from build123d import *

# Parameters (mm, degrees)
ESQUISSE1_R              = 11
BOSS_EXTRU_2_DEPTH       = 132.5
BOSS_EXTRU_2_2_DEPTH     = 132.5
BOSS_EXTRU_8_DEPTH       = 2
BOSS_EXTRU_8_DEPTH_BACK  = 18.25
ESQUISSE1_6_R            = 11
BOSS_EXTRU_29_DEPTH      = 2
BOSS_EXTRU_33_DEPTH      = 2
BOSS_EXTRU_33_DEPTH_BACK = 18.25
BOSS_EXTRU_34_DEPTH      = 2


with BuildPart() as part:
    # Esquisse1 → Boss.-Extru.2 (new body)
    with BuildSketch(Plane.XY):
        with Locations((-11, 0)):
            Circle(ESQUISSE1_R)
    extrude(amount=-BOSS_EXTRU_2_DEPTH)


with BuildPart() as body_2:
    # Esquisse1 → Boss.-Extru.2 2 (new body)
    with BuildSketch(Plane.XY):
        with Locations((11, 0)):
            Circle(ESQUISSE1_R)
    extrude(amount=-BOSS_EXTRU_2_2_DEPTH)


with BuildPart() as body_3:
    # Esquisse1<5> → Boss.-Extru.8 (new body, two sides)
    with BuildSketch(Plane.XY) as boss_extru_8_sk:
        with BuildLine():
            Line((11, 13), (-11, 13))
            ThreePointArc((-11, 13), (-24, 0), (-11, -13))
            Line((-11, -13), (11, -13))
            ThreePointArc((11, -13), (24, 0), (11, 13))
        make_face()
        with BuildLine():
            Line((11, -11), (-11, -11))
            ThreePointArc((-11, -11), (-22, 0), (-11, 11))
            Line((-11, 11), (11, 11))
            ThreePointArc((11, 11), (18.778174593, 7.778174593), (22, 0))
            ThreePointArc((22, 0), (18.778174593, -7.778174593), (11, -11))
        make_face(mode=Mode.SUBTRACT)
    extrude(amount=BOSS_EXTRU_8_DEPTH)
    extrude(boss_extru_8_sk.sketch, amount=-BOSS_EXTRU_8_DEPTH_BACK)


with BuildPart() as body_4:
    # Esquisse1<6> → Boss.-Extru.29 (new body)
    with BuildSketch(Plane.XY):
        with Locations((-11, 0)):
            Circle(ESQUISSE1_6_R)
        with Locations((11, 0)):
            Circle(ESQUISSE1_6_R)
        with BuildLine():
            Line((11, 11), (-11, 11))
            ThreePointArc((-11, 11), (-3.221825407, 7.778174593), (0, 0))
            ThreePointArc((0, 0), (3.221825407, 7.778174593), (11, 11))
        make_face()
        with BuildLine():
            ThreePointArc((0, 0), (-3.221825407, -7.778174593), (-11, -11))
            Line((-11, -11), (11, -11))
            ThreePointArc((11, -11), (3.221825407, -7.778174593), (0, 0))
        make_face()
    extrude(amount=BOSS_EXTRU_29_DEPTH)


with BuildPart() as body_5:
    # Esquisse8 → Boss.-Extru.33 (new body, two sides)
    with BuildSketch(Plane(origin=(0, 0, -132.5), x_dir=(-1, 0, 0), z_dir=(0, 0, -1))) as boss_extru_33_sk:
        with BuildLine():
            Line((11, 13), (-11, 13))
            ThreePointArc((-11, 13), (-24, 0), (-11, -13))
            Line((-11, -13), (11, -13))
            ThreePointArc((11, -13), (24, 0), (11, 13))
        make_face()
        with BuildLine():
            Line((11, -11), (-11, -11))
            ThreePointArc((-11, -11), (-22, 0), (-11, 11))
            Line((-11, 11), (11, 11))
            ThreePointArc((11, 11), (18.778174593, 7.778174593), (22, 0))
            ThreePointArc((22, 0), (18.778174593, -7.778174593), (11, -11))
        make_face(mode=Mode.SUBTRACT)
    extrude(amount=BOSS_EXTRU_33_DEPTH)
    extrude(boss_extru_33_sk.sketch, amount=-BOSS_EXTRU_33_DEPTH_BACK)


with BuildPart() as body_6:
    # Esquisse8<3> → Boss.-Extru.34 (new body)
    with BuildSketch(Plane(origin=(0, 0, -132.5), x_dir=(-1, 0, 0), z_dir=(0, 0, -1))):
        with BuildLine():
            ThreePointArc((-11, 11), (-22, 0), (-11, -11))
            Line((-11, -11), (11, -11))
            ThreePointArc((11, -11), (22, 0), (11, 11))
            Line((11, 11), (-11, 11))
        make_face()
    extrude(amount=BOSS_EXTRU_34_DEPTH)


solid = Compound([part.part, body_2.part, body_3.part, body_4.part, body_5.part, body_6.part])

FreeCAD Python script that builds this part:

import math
import FreeCAD as App
import Part
import Sketcher

V = App.Vector
Q = App.Units.Quantity

doc = App.newDocument("Part")
params = doc.addObject("Spreadsheet::Sheet", "Params")
for row, (alias, value) in enumerate([
    ("sketch1_diameter", "22 mm"),
    ("pad1_length", "132.5 mm"),
    ("sketch2_diameter", "22 mm"),
    ("pad2_length", "132.5 mm"),
    ("sketch3_radius", "13 mm"),
    ("sketch3_radius2", "11 mm"),
    ("sketch3_width", "22 mm"),
    ("pad3_length", "2 mm"),
    ("pad3_length2", "18.25 mm"),
    ("sketch4_radius", "11 mm"),
    ("sketch4_width", "22 mm"),
    ("pad4_length", "2 mm"),
    ("sketch5_radius", "13 mm"),
    ("sketch5_radius2", "11 mm"),
    ("sketch5_width", "22 mm"),
    ("pad5_length", "2 mm"),
    ("pad5_length2", "18.25 mm"),
    ("sketch6_radius", "11 mm"),
    ("sketch6_width", "22 mm"),
    ("pad6_length", "2 mm"),
], start=1):
    params.set(f"A{row}", alias)
    params.set(f"B{row}", "=" + value)
    params.setAlias(f"B{row}", alias)

body = doc.addObject("PartDesign::Body", "Body")

# Sketch on XY plane
sketch1 = doc.addObject("Sketcher::SketchObject", "Sketch")
body.addObject(sketch1)
sketch1.AttachmentSupport = (doc.XY_Plane, [""])
sketch1.MapMode = "FlatFace"
sketch1.addGeometry(Part.Circle(V(-11, 0, 0), V(0, 0, 1), 11), False)
sketch1.addConstraint([
    Sketcher.Constraint("PointOnObject", 0, 3, -1),
    Sketcher.Constraint("Diameter", 0, Q("22 mm")),
    Sketcher.Constraint("DistanceX", 0, 3, -1, 1, Q("11 mm")),
])
sketch1.setExpression("Constraints[1]", "Params.sketch1_diameter")
pad1 = doc.addObject("PartDesign::Pad", "Pad")
body.addObject(pad1)
pad1.Profile = sketch1
pad1.setExpression("Length", "Params.pad1_length")
pad1.Reversed = True
body2 = doc.addObject("PartDesign::Body", "Body001")

# Sketch on XY plane
sketch2 = doc.addObject("Sketcher::SketchObject", "Sketch001")
body2.addObject(sketch2)
sketch2.AttachmentSupport = (doc.getObject("XY_Plane001"), [""])
sketch2.MapMode = "FlatFace"
sketch2.addGeometry(Part.Circle(V(11, 0, 0), V(0, 0, 1), 11), False)
sketch2.addConstraint([
    Sketcher.Constraint("PointOnObject", 0, 3, -1),
    Sketcher.Constraint("Diameter", 0, Q("22 mm")),
    Sketcher.Constraint("DistanceX", -1, 1, 0, 3, Q("11 mm")),
])
sketch2.setExpression("Constraints[1]", "Params.sketch2_diameter")
pad2 = doc.addObject("PartDesign::Pad", "Pad001")
body2.addObject(pad2)
pad2.Profile = sketch2
pad2.setExpression("Length", "Params.pad2_length")
pad2.Reversed = True
body3 = doc.addObject("PartDesign::Body", "Body002")

# Sketch on XY plane
sketch3 = doc.addObject("Sketcher::SketchObject", "Sketch002")
body3.addObject(sketch3)
sketch3.AttachmentSupport = (doc.getObject("XY_Plane002"), [""])
sketch3.MapMode = "FlatFace"
sketch3.addGeometry([
    Part.LineSegment(V(11, 13, 0), V(-11, 13, 0)),  # 0
    Part.ArcOfCircle(Part.Circle(V(-11, 0, 0), V(0, 0, 1), 13), math.radians(90), math.radians(270)),  # 1
    Part.LineSegment(V(-11, -13, 0), V(11, -13, 0)),  # 2
    Part.ArcOfCircle(Part.Circle(V(11, 0, 0), V(0, 0, 1), 13), math.radians(-90), math.radians(90)),  # 3
    Part.ArcOfCircle(Part.Circle(V(11, 0, 0), V(0, 0, 1), 11), math.radians(-90), math.radians(0)),  # 4
    Part.LineSegment(V(11, -11, 0), V(-11, -11, 0)),  # 5
    Part.ArcOfCircle(Part.Circle(V(-11, 0, 0), V(0, 0, 1), 11), math.radians(90), math.radians(270)),  # 6
    Part.LineSegment(V(-11, 11, 0), V(11, 11, 0)),  # 7
    Part.ArcOfCircle(Part.Circle(V(11, 0, 0), V(0, 0, 1), 11), math.radians(0), math.radians(90)),  # 8
], False)
sketch3.addConstraint([
    Sketcher.Constraint("Tangent", 0, 2, 1, 1),
    Sketcher.Constraint("Tangent", 1, 2, 2, 1),
    Sketcher.Constraint("Tangent", 2, 2, 3, 1),
    Sketcher.Constraint("Tangent", 3, 2, 0, 1),
    Sketcher.Constraint("Tangent", 4, 1, 5, 1),
    Sketcher.Constraint("Tangent", 5, 2, 6, 2),
    Sketcher.Constraint("Tangent", 6, 1, 7, 1),
    Sketcher.Constraint("Tangent", 7, 2, 8, 2),
    Sketcher.Constraint("Tangent", 8, 1, 4, 2),
    Sketcher.Constraint("Horizontal", 0),
    Sketcher.Constraint("Horizontal", 2),
    Sketcher.Constraint("Horizontal", 5),
    Sketcher.Constraint("Horizontal", 7),
    Sketcher.Constraint("Coincident", 4, 3, 3, 3),
    Sketcher.Constraint("Coincident", 6, 3, 1, 3),
    Sketcher.Constraint("Symmetric", 1, 3, 3, 3, -1, 1),
    Sketcher.Constraint("PointOnObject", 8, 1, -1),
    Sketcher.Constraint("Radius", 1, Q("13 mm")),
    Sketcher.Constraint("Radius", 4, Q("11 mm")),
    Sketcher.Constraint("DistanceX", 0, 2, 0, 1, Q("22 mm")),
])
sketch3.setExpression("Constraints[17]", "Params.sketch3_radius")
sketch3.setExpression("Constraints[18]", "Params.sketch3_radius2")
sketch3.setExpression("Constraints[19]", "Params.sketch3_width")
pad3 = doc.addObject("PartDesign::Pad", "Pad002")
body3.addObject(pad3)
pad3.Profile = sketch3
pad3.Type = "TwoLengths"
pad3.setExpression("Length", "Params.pad3_length")
pad3.setExpression("Length2", "Params.pad3_length2")
body4 = doc.addObject("PartDesign::Body", "Body003")

# Sketch on XY plane
sketch4 = doc.addObject("Sketcher::SketchObject", "Sketch003")
body4.addObject(sketch4)
sketch4.AttachmentSupport = (doc.getObject("XY_Plane003"), [""])
sketch4.MapMode = "FlatFace"
sketch4.addGeometry([
    Part.ArcOfCircle(Part.Circle(V(-11, 0, 0), V(0, 0, 1), 11), math.radians(90), math.radians(270)),
    Part.LineSegment(V(-11, -11, 0), V(11, -11, 0)),
    Part.ArcOfCircle(Part.Circle(V(11, 0, 0), V(0, 0, 1), 11), math.radians(-90), math.radians(90)),
    Part.LineSegment(V(11, 11, 0), V(-11, 11, 0)),
], False)
sketch4.addConstraint([
    Sketcher.Constraint("Tangent", 0, 2, 1, 1),
    Sketcher.Constraint("Tangent", 1, 2, 2, 1),
    Sketcher.Constraint("Tangent", 2, 2, 3, 1),
    Sketcher.Constraint("Tangent", 3, 2, 0, 1),
    Sketcher.Constraint("Horizontal", 1),
    Sketcher.Constraint("Horizontal", 3),
    Sketcher.Constraint("Symmetric", 0, 3, 2, 3, -1, 1),
    Sketcher.Constraint("Radius", 0, Q("11 mm")),
    Sketcher.Constraint("DistanceX", 1, 1, 1, 2, Q("22 mm")),
])
sketch4.setExpression("Constraints[7]", "Params.sketch4_radius")
sketch4.setExpression("Constraints[8]", "Params.sketch4_width")
pad4 = doc.addObject("PartDesign::Pad", "Pad003")
body4.addObject(pad4)
pad4.Profile = sketch4
pad4.setExpression("Length", "Params.pad4_length")
body5 = doc.addObject("PartDesign::Body", "Body004")

# Sketch on XY plane
sketch5 = doc.addObject("Sketcher::SketchObject", "Sketch004")
body5.addObject(sketch5)
sketch5.AttachmentSupport = (doc.getObject("XY_Plane004"), [""])
sketch5.MapMode = "FlatFace"
sketch5.AttachmentOffset = App.Placement(V(0, 0, -132.5), App.Rotation())
sketch5.addGeometry([
    Part.LineSegment(V(-11, 13, 0), V(11, 13, 0)),  # 0
    Part.ArcOfCircle(Part.Circle(V(11, 0, 0), V(0, 0, 1), 13), math.radians(-90), math.radians(90)),  # 1
    Part.LineSegment(V(11, -13, 0), V(-11, -13, 0)),  # 2
    Part.ArcOfCircle(Part.Circle(V(-11, 0, 0), V(0, 0, 1), 13), math.radians(90), math.radians(270)),  # 3
    Part.ArcOfCircle(Part.Circle(V(-11, 0, 0), V(0, 0, 1), 11), math.radians(180), math.radians(270)),  # 4
    Part.LineSegment(V(-11, -11, 0), V(11, -11, 0)),  # 5
    Part.ArcOfCircle(Part.Circle(V(11, 0, 0), V(0, 0, 1), 11), math.radians(-90), math.radians(90)),  # 6
    Part.LineSegment(V(11, 11, 0), V(-11, 11, 0)),  # 7
    Part.ArcOfCircle(Part.Circle(V(-11, 0, 0), V(0, 0, 1), 11), math.radians(90), math.radians(180)),  # 8
], False)
sketch5.addConstraint([
    Sketcher.Constraint("Tangent", 0, 2, 1, 2),
    Sketcher.Constraint("Tangent", 1, 1, 2, 1),
    Sketcher.Constraint("Tangent", 2, 2, 3, 2),
    Sketcher.Constraint("Tangent", 3, 1, 0, 1),
    Sketcher.Constraint("Tangent", 4, 2, 5, 1),
    Sketcher.Constraint("Tangent", 5, 2, 6, 1),
    Sketcher.Constraint("Tangent", 6, 2, 7, 1),
    Sketcher.Constraint("Tangent", 7, 2, 8, 1),
    Sketcher.Constraint("Tangent", 8, 2, 4, 1),
    Sketcher.Constraint("Horizontal", 0),
    Sketcher.Constraint("Horizontal", 2),
    Sketcher.Constraint("Horizontal", 5),
    Sketcher.Constraint("Horizontal", 7),
    Sketcher.Constraint("Coincident", 4, 3, 3, 3),
    Sketcher.Constraint("Coincident", 6, 3, 1, 3),
    Sketcher.Constraint("Symmetric", 1, 3, 3, 3, -1, 1),
    Sketcher.Constraint("PointOnObject", 8, 2, -1),
    Sketcher.Constraint("Radius", 1, Q("13 mm")),
    Sketcher.Constraint("Radius", 4, Q("11 mm")),
    Sketcher.Constraint("DistanceX", 0, 1, 0, 2, Q("22 mm")),
])
sketch5.setExpression("Constraints[17]", "Params.sketch5_radius")
sketch5.setExpression("Constraints[18]", "Params.sketch5_radius2")
sketch5.setExpression("Constraints[19]", "Params.sketch5_width")
pad5 = doc.addObject("PartDesign::Pad", "Pad004")
body5.addObject(pad5)
pad5.Profile = sketch5
pad5.Type = "TwoLengths"
pad5.setExpression("Length", "Params.pad5_length")
pad5.setExpression("Length2", "Params.pad5_length2")
pad5.Reversed = True
body6 = doc.addObject("PartDesign::Body", "Body005")

# Sketch on XY plane
sketch6 = doc.addObject("Sketcher::SketchObject", "Sketch005")
body6.addObject(sketch6)
sketch6.AttachmentSupport = (doc.getObject("XY_Plane005"), [""])
sketch6.MapMode = "FlatFace"
sketch6.AttachmentOffset = App.Placement(V(0, 0, -132.5), App.Rotation())
sketch6.addGeometry([
    Part.ArcOfCircle(Part.Circle(V(11, 0, 0), V(0, 0, 1), 11), math.radians(-90), math.radians(90)),
    Part.LineSegment(V(11, -11, 0), V(-11, -11, 0)),
    Part.ArcOfCircle(Part.Circle(V(-11, 0, 0), V(0, 0, 1), 11), math.radians(90), math.radians(270)),
    Part.LineSegment(V(-11, 11, 0), V(11, 11, 0)),
], False)
sketch6.addConstraint([
    Sketcher.Constraint("Tangent", 0, 1, 1, 1),
    Sketcher.Constraint("Tangent", 1, 2, 2, 2),
    Sketcher.Constraint("Tangent", 2, 1, 3, 1),
    Sketcher.Constraint("Tangent", 3, 2, 0, 2),
    Sketcher.Constraint("Horizontal", 1),
    Sketcher.Constraint("Horizontal", 3),
    Sketcher.Constraint("Symmetric", 0, 3, 2, 3, -1, 1),
    Sketcher.Constraint("Radius", 0, Q("11 mm")),
    Sketcher.Constraint("DistanceX", 1, 2, 1, 1, Q("22 mm")),
])
sketch6.setExpression("Constraints[7]", "Params.sketch6_radius")
sketch6.setExpression("Constraints[8]", "Params.sketch6_width")
pad6 = doc.addObject("PartDesign::Pad", "Pad005")
body6.addObject(pad6)
pad6.Profile = sketch6
pad6.setExpression("Length", "Params.pad6_length")
pad6.Reversed = True

doc.recompute()
